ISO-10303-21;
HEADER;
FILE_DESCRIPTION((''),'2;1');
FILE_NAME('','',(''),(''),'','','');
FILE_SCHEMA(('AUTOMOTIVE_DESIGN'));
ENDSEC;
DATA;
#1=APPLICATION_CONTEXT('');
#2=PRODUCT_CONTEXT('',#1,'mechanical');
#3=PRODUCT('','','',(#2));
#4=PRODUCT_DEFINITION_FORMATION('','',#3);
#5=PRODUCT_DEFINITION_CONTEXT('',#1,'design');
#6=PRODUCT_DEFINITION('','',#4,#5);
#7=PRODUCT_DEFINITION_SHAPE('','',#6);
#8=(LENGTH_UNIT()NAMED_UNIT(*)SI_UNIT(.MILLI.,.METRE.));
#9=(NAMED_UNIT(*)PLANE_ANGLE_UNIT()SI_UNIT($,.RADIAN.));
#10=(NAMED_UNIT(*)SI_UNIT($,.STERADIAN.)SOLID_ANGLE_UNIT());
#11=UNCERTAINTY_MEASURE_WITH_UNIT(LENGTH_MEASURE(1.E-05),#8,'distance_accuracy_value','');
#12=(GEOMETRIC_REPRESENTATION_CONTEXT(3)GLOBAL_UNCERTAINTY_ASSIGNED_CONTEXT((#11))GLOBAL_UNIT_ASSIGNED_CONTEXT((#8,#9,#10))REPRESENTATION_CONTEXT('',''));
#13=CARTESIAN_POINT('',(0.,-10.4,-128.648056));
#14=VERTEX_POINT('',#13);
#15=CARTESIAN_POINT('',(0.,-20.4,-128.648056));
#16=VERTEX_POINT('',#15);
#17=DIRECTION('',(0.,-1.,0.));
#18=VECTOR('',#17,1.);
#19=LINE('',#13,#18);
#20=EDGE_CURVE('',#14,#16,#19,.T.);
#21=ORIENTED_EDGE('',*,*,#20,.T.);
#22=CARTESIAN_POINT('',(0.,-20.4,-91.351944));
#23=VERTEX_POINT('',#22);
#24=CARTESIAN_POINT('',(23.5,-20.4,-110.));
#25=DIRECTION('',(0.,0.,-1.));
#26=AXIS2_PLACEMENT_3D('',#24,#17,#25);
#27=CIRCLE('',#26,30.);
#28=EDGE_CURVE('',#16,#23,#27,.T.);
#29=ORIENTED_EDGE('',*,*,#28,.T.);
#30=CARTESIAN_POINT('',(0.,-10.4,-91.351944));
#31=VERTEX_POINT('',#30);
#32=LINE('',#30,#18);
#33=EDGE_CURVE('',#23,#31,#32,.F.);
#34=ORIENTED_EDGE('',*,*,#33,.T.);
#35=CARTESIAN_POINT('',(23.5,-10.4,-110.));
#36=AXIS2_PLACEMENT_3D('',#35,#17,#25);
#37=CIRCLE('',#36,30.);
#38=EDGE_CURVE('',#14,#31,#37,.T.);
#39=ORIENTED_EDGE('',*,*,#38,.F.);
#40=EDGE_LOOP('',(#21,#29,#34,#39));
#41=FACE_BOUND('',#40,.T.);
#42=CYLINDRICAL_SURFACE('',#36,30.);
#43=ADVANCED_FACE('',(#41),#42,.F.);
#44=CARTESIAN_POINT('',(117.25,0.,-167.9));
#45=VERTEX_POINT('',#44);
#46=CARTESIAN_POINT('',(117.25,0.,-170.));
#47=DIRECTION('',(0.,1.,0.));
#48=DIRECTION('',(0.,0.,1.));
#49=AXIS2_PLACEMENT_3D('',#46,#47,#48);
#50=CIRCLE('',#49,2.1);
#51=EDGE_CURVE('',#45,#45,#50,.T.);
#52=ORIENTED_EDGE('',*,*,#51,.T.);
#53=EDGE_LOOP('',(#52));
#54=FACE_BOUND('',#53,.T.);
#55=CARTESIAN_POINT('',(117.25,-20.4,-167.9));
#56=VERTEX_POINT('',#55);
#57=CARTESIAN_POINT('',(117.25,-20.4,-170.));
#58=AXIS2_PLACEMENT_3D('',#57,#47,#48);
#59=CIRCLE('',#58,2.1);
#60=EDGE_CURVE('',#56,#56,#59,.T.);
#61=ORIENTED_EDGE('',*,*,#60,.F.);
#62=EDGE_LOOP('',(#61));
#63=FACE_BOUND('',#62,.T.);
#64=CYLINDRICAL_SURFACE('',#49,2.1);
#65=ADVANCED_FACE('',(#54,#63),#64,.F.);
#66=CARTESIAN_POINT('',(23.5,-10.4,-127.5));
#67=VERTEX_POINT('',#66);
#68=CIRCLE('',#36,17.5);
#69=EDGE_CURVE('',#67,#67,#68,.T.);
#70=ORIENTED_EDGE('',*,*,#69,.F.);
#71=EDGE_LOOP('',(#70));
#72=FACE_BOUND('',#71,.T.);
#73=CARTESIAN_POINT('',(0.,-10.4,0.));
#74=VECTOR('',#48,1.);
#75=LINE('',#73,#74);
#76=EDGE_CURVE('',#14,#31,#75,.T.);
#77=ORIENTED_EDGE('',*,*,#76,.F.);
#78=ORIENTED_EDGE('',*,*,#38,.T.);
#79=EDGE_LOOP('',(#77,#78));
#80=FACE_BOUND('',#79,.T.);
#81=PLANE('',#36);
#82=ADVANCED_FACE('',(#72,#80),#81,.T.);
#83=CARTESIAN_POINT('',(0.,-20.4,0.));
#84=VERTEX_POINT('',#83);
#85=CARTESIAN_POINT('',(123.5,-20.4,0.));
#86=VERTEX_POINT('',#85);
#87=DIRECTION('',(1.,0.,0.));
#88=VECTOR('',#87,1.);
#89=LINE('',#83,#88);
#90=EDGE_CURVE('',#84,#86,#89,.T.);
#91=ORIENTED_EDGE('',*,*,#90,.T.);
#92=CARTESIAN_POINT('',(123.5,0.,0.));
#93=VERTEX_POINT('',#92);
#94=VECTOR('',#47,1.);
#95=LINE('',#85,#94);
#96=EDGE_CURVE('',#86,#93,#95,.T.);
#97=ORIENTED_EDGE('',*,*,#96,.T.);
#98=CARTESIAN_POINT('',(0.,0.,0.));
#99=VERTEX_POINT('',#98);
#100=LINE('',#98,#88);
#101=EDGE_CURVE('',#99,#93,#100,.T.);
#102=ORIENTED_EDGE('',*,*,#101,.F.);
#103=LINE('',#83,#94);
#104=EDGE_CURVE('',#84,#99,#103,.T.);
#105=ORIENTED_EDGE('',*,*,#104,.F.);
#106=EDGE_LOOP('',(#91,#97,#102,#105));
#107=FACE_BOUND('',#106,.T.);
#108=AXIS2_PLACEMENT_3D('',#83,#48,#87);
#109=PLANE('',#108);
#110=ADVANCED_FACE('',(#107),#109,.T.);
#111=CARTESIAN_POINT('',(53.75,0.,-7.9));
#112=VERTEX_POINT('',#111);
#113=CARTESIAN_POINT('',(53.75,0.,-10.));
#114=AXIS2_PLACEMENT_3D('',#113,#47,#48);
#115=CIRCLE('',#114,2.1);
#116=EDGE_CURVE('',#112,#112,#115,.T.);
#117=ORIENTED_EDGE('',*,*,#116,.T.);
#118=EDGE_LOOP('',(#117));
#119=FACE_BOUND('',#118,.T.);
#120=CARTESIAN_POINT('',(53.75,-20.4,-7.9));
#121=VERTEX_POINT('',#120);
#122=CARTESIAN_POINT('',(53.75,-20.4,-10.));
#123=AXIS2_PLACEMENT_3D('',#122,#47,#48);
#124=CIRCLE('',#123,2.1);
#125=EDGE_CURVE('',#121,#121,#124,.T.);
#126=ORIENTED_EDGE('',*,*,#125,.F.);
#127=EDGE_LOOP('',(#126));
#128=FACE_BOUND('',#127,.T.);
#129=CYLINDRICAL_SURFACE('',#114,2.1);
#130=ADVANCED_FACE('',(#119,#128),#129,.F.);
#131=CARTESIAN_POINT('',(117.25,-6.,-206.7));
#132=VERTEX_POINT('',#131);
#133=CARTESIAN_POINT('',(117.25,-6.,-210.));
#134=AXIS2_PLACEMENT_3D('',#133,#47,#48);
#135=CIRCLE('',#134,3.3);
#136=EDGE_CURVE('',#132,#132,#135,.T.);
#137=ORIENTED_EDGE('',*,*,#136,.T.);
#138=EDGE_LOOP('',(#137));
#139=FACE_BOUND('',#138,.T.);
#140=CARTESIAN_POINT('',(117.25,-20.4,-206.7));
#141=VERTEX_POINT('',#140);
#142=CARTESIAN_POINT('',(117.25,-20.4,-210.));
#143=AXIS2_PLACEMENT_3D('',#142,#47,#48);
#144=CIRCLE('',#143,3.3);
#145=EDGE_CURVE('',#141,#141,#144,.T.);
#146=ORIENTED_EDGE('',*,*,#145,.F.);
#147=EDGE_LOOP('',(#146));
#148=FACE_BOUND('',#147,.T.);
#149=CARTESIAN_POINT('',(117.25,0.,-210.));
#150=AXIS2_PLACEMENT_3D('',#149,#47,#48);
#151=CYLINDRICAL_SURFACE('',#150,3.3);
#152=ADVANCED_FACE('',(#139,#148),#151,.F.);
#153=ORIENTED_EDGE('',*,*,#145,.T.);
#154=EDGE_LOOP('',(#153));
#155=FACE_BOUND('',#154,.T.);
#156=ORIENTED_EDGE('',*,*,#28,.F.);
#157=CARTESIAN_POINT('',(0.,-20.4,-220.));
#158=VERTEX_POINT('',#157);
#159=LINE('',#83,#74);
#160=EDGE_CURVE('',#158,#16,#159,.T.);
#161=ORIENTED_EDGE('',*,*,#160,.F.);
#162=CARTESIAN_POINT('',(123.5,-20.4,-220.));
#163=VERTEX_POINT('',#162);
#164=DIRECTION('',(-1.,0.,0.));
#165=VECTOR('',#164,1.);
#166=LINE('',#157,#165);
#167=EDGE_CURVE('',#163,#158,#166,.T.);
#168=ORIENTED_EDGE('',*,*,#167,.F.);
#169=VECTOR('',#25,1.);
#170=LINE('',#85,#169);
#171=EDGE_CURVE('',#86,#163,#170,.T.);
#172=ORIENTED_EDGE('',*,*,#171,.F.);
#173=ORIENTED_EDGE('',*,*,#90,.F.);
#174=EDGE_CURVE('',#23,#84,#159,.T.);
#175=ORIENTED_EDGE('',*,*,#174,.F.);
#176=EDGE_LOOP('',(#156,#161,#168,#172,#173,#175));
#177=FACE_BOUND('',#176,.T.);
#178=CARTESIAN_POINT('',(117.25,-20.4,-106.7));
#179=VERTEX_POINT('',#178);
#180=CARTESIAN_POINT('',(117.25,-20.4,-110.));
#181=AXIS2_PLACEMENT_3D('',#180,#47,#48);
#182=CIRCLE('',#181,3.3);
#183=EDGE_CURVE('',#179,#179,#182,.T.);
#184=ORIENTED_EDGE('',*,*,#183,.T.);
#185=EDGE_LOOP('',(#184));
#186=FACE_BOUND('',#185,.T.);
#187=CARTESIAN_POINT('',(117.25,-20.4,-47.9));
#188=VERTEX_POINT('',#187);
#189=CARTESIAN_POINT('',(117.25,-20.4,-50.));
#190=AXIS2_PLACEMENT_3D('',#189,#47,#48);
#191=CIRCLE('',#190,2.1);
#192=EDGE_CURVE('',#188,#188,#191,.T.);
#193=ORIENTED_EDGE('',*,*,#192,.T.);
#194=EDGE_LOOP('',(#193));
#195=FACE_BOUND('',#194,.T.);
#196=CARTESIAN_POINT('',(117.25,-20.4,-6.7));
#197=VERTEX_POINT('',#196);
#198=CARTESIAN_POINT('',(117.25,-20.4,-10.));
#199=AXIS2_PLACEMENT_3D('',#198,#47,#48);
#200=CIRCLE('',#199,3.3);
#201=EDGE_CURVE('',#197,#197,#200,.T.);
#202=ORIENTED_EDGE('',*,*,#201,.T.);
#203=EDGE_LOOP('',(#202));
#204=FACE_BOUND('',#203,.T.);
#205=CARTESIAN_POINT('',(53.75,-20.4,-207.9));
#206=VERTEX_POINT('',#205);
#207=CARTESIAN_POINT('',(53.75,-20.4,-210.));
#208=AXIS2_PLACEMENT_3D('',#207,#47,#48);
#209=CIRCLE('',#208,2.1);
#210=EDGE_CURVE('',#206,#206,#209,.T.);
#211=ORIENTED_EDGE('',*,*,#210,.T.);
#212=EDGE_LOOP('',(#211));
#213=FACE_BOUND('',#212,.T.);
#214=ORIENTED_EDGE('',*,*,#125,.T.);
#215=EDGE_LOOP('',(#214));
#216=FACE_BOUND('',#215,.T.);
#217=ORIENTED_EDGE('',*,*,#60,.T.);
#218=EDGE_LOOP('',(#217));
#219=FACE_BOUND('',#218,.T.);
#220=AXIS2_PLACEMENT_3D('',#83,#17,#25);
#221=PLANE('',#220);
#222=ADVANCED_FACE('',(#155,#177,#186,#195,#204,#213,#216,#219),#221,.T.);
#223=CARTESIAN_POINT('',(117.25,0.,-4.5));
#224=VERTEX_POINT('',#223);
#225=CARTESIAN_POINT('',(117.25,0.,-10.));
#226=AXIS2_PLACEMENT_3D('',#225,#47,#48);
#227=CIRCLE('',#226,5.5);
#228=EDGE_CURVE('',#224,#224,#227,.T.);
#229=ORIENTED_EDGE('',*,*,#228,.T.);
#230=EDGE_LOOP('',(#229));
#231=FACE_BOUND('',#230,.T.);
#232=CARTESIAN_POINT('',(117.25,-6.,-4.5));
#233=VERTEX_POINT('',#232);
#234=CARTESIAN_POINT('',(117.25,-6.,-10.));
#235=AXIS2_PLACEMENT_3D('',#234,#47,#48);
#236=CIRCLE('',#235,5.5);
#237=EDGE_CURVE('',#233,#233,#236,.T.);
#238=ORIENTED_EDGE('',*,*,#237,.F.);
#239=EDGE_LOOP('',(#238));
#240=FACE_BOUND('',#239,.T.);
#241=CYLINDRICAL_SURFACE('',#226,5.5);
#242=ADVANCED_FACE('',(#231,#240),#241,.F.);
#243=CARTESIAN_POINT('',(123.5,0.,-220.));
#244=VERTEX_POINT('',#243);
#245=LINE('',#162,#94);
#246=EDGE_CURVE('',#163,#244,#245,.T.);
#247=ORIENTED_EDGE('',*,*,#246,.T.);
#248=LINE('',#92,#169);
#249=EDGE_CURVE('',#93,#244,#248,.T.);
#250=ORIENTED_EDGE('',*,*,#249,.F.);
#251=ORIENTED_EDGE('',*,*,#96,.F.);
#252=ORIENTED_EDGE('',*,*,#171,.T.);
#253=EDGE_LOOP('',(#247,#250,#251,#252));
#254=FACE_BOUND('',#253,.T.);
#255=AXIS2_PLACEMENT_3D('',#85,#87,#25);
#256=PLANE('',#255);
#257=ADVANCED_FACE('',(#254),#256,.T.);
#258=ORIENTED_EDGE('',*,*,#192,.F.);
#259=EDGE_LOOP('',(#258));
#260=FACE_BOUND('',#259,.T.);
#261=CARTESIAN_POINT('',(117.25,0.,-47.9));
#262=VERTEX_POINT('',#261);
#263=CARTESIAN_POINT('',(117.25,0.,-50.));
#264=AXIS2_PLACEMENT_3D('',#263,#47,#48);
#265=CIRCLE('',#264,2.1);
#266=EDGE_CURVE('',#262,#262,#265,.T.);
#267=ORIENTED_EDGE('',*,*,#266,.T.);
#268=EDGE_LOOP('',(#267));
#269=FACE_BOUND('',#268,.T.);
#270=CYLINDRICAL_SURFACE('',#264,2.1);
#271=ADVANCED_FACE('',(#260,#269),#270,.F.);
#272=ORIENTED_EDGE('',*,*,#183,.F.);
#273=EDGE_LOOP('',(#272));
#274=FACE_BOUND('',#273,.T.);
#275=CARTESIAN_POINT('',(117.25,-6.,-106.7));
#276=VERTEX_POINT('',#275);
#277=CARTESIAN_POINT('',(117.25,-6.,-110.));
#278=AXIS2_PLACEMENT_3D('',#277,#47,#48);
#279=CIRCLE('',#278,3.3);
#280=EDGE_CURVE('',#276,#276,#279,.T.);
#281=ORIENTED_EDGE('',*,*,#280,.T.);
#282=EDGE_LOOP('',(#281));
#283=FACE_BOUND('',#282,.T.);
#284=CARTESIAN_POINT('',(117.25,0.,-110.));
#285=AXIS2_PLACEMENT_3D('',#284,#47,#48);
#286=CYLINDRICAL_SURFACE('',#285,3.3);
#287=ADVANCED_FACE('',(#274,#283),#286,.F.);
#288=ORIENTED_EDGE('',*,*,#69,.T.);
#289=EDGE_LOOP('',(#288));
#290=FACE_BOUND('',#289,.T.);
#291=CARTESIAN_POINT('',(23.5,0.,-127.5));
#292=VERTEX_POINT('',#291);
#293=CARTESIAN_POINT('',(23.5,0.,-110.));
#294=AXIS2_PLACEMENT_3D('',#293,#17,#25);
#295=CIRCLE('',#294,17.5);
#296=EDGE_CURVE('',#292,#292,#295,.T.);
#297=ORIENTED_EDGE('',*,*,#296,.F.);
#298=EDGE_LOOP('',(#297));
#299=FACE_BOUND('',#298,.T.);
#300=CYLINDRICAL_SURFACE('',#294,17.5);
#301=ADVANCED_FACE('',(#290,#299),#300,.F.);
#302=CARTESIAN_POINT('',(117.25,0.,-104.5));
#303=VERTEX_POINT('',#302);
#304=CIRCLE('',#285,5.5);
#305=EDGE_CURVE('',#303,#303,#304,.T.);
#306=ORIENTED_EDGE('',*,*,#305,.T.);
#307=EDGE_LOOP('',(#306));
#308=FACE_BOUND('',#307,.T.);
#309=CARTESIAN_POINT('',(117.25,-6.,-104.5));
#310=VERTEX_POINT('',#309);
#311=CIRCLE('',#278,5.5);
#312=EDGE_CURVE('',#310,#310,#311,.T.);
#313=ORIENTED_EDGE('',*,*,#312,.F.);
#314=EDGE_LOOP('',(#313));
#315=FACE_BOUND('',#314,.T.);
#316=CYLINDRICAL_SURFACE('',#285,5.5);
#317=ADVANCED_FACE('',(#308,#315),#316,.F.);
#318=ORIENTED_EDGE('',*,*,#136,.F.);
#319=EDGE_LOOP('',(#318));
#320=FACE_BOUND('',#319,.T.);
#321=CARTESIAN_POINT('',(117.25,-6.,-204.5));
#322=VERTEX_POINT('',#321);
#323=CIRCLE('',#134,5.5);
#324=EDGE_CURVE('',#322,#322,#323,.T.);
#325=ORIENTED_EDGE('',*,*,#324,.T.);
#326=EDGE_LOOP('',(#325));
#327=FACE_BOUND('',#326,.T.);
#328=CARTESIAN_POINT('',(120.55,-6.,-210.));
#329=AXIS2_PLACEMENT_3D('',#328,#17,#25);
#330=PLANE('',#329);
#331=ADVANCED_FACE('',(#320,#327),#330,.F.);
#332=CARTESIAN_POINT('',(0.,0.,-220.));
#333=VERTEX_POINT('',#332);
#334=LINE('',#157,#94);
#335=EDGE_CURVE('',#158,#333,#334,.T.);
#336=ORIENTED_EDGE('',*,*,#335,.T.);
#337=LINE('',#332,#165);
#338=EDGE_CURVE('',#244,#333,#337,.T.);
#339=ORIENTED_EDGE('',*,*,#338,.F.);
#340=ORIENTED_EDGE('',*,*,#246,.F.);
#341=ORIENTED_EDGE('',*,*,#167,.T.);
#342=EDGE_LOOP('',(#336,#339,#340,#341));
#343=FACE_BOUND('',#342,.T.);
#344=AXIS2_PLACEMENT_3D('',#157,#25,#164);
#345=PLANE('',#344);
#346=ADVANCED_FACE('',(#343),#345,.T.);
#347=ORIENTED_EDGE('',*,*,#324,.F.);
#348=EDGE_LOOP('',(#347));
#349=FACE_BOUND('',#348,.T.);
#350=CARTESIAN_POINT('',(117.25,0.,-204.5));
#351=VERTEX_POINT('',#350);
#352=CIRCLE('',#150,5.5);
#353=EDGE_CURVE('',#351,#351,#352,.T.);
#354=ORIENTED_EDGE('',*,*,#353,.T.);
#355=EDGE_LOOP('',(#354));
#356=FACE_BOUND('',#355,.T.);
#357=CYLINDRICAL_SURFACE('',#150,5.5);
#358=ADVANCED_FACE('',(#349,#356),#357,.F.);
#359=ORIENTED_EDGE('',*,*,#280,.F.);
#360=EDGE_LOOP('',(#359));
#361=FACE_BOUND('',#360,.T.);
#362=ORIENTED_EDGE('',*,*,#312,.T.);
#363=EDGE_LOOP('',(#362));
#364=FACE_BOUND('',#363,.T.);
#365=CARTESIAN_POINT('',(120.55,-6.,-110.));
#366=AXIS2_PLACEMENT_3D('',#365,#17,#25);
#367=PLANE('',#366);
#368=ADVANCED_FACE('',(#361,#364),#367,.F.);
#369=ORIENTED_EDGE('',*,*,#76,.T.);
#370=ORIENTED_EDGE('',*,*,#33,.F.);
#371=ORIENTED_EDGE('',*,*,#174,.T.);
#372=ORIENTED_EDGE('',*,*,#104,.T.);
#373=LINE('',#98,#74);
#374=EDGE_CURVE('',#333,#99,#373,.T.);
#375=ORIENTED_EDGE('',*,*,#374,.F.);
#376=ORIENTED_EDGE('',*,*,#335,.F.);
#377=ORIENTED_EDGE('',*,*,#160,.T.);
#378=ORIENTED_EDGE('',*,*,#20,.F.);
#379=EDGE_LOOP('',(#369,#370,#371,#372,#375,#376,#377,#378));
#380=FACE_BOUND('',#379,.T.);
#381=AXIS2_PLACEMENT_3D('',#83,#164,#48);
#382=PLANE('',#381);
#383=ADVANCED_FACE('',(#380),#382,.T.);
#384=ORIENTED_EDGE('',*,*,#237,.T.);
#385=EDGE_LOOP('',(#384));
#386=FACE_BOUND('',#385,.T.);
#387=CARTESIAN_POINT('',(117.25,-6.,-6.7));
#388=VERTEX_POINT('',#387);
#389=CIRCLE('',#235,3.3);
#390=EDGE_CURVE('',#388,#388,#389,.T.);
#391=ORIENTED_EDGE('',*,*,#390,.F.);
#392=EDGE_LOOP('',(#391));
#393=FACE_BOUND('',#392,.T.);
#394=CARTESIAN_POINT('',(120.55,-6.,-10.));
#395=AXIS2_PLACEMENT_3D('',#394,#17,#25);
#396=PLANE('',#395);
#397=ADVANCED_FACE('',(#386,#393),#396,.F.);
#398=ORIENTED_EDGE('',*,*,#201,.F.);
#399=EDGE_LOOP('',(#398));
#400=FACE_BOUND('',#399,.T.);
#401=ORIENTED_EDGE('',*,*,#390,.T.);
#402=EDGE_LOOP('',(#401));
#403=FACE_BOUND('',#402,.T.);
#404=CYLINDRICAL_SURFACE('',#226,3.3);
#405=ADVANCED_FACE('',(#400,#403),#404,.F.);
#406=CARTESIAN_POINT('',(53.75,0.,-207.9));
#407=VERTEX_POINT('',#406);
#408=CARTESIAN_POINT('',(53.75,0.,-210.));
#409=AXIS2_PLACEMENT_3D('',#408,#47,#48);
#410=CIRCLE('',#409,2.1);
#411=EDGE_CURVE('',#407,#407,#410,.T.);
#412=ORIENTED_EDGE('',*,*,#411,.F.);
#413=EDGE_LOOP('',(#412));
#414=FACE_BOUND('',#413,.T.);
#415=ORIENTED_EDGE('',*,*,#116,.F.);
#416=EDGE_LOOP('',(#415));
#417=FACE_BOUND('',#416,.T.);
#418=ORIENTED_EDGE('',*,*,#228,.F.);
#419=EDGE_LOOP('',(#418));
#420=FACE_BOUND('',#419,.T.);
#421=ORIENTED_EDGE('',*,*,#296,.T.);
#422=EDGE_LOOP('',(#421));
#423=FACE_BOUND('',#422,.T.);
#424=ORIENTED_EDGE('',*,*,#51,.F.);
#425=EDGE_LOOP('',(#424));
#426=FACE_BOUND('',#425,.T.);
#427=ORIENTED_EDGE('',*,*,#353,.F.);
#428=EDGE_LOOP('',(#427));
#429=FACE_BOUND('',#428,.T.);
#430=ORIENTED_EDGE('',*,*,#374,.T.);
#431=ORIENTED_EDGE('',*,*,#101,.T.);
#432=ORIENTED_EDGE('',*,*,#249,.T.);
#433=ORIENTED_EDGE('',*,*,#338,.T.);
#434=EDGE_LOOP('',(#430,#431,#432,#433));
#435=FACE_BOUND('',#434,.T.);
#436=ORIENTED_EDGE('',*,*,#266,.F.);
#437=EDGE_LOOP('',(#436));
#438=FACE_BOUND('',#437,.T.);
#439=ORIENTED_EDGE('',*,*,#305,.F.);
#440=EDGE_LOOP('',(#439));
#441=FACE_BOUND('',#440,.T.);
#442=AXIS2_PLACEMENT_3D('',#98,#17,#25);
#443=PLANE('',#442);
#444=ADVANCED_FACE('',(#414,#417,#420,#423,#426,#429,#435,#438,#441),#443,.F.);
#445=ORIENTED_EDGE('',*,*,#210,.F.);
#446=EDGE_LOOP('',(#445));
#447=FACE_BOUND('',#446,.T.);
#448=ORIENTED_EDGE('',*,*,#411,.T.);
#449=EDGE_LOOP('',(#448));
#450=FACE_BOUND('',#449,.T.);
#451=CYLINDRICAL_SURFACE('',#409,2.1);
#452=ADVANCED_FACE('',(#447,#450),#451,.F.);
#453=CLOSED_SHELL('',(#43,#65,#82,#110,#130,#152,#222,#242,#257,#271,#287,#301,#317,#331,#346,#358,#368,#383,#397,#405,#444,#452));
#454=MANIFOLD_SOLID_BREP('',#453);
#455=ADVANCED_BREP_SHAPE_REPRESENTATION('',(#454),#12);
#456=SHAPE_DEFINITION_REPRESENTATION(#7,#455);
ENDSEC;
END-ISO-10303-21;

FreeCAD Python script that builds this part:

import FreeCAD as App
import Part
import Sketcher

doc = App.newDocument("Part")
body = doc.addObject("PartDesign::Body", "Body")

# Sketch on XZ plane
sketch1 = body.newObject("Sketcher::SketchObject", "Sketch")
sketch1.AttachmentSupport = (doc.getObject("XZ_Plane"), [""])
sketch1.MapMode = "FlatFace"
sketch1.addGeometry([
    Part.LineSegment(App.Vector(0, -220, 0), App.Vector(0, 0, 0)),
    Part.LineSegment(App.Vector(0, 0, 0), App.Vector(123.5, 0, 0)),
    Part.LineSegment(App.Vector(123.5, 0, 0), App.Vector(123.5, -220, 0)),
    Part.LineSegment(App.Vector(123.5, -220, 0), App.Vector(0, -220, 0)),
], False)
sketch1.addConstraint([
    Sketcher.Constraint("Coincident", 0, 2, 1, 1),
    Sketcher.Constraint("Coincident", 1, 2, 2, 1),
    Sketcher.Constraint("Coincident", 2, 2, 3, 1),
    Sketcher.Constraint("Coincident", 3, 2, 0, 1),
    Sketcher.Constraint("Vertical", 0),
    Sketcher.Constraint("Horizontal", 1),
    Sketcher.Constraint("Vertical", 2),
    Sketcher.Constraint("Horizontal", 3),
    Sketcher.Constraint("Coincident", 0, 2, -1, 1),
    Sketcher.Constraint("DistanceY", 0, 1, 0, 2, 220.0),
    Sketcher.Constraint("DistanceX", 1, 1, 1, 2, 123.5),
])
pad1 = body.newObject("PartDesign::Pad", "Pad")
pad1.Profile = sketch1
pad1.Length = 20.4

# Sketch on XZ plane
sketch2 = body.newObject("Sketcher::SketchObject", "Sketch001")
sketch2.AttachmentSupport = (doc.getObject("XZ_Plane"), [""])
sketch2.MapMode = "FlatFace"
sketch2.AttachmentOffset = App.Placement(App.Vector(0, 0, 20.4), App.Rotation())
sketch2.addGeometry(Part.Circle(App.Vector(23.5, -110, 0), App.Vector(0, 0, 1), 17.5), False)
sketch2.addConstraint([
    Sketcher.Constraint("Diameter", 0, 35.0),
    Sketcher.Constraint("DistanceY", 0, 3, -1, 1, 110.0),
    Sketcher.Constraint("DistanceX", -1, 1, 0, 3, 23.5),
])
pocket1 = body.newObject("PartDesign::Pocket", "Pocket")
pocket1.Profile = sketch2
pocket1.Type = "ThroughAll"

# Sketch on XZ plane
sketch3 = body.newObject("Sketcher::SketchObject", "Sketch002")
sketch3.AttachmentSupport = (doc.getObject("XZ_Plane"), [""])
sketch3.MapMode = "FlatFace"
sketch3.AttachmentOffset = App.Placement(App.Vector(0, 0, 20.4), App.Rotation())
sketch3.addGeometry([
    Part.Circle(App.Vector(23.5, -110, 0), App.Vector(0, 0, 1), 30),
    Part.Circle(App.Vector(23.5, -110, 0), App.Vector(0, 0, 1), 17.5),
], False)
sketch3.addConstraint([
    Sketcher.Constraint("Coincident", 1, 3, 0, 3),
    Sketcher.Constraint("Diameter", 0, 60.0),
    Sketcher.Constraint("Diameter", 1, 35.0),
    Sketcher.Constraint("DistanceY", 0, 3, -1, 1, 110.0),
    Sketcher.Constraint("DistanceX", -1, 1, 0, 3, 23.5),
])
pocket2 = body.newObject("PartDesign::Pocket", "Pocket001")
pocket2.Profile = sketch3
pocket2.Length = 10

# Sketch on XZ plane
sketch4 = body.newObject("Sketcher::SketchObject", "Sketch003")
sketch4.AttachmentSupport = (doc.getObject("XZ_Plane"), [""])
sketch4.MapMode = "FlatFace"
sketch4.addGeometry([
    Part.Circle(App.Vector(117.25, -10, 0), App.Vector(0, 0, 1), 3.3),
    Part.Circle(App.Vector(117.25, -110, 0), App.Vector(0, 0, 1), 3.3),
    Part.Circle(App.Vector(117.25, -210, 0), App.Vector(0, 0, 1), 3.3),
], False)
sketch4.addConstraint([
    Sketcher.Constraint("Equal", 0, 1),
    Sketcher.Constraint("Equal", 1, 2),
    Sketcher.Constraint("Vertical", 0, 3, 1, 3),
    Sketcher.Constraint("Vertical", 1, 3, 2, 3),
    Sketcher.Constraint("Diameter", 0, 6.6),
    Sketcher.Constraint("DistanceY", 0, 3, -1, 1, 10.0),
    Sketcher.Constraint("DistanceY", 1, 3, -1, 1, 110.0),
    Sketcher.Constraint("DistanceY", 2, 3, -1, 1, 210.0),
    Sketcher.Constraint("DistanceX", -1, 1, 0, 3, 117.25),
])
doc.recompute()
hole = body.newObject("PartDesign::Hole", "Hole")
hole.Profile = sketch4
hole.ThreadType = "None"
hole.Diameter = 6.6
hole.DepthType = "ThroughAll"
hole.HoleCutType = "Counterbore"
hole.HoleCutDiameter = 11
hole.HoleCutDepth = 6
hole.Reversed = True

# Sketch on XZ plane
sketch5 = body.newObject("Sketcher::SketchObject", "Sketch004")
sketch5.AttachmentSupport = (doc.getObject("XZ_Plane"), [""])
sketch5.MapMode = "FlatFace"
sketch5.addGeometry([
    Part.Circle(App.Vector(53.75, -10, 0), App.Vector(0, 0, 1), 2.1),
    Part.Circle(App.Vector(117.25, -50, 0), App.Vector(0, 0, 1), 2.1),
    Part.Circle(App.Vector(117.25, -170, 0), App.Vector(0, 0, 1), 2.1),
    Part.Circle(App.Vector(53.75, -210, 0), App.Vector(0, 0, 1), 2.1),
], False)
sketch5.addConstraint([
    Sketcher.Constraint("Equal", 0, 1),
    Sketcher.Constraint("Equal", 1, 2),
    Sketcher.Constraint("Equal", 2, 3),
    Sketcher.Constraint("Vertical", 1, 3, 2, 3),
    Sketcher.Constraint("Vertical", 0, 3, 3, 3),
    Sketcher.Constraint("Diameter", 0, 4.2),
    Sketcher.Constraint("DistanceY", 0, 3, -1, 1, 10.0),
    Sketcher.Constraint("DistanceY", 1, 3, -1, 1, 50.0),
    Sketcher.Constraint("DistanceY", 2, 3, -1, 1, 170.0),
    Sketcher.Constraint("DistanceY", 3, 3, -1, 1, 210.0),
    Sketcher.Constraint("DistanceX", 0, 3, 1, 3, 63.5),
    Sketcher.Constraint("DistanceX", -1, 1, 0, 3, 53.75),
])
doc.recompute()
hole2 = body.newObject("PartDesign::Hole", "Hole001")
hole2.Profile = sketch5
hole2.ThreadType = "None"
hole2.Diameter = 4.2
hole2.DepthType = "ThroughAll"
hole2.Reversed = True

doc.recompute()
